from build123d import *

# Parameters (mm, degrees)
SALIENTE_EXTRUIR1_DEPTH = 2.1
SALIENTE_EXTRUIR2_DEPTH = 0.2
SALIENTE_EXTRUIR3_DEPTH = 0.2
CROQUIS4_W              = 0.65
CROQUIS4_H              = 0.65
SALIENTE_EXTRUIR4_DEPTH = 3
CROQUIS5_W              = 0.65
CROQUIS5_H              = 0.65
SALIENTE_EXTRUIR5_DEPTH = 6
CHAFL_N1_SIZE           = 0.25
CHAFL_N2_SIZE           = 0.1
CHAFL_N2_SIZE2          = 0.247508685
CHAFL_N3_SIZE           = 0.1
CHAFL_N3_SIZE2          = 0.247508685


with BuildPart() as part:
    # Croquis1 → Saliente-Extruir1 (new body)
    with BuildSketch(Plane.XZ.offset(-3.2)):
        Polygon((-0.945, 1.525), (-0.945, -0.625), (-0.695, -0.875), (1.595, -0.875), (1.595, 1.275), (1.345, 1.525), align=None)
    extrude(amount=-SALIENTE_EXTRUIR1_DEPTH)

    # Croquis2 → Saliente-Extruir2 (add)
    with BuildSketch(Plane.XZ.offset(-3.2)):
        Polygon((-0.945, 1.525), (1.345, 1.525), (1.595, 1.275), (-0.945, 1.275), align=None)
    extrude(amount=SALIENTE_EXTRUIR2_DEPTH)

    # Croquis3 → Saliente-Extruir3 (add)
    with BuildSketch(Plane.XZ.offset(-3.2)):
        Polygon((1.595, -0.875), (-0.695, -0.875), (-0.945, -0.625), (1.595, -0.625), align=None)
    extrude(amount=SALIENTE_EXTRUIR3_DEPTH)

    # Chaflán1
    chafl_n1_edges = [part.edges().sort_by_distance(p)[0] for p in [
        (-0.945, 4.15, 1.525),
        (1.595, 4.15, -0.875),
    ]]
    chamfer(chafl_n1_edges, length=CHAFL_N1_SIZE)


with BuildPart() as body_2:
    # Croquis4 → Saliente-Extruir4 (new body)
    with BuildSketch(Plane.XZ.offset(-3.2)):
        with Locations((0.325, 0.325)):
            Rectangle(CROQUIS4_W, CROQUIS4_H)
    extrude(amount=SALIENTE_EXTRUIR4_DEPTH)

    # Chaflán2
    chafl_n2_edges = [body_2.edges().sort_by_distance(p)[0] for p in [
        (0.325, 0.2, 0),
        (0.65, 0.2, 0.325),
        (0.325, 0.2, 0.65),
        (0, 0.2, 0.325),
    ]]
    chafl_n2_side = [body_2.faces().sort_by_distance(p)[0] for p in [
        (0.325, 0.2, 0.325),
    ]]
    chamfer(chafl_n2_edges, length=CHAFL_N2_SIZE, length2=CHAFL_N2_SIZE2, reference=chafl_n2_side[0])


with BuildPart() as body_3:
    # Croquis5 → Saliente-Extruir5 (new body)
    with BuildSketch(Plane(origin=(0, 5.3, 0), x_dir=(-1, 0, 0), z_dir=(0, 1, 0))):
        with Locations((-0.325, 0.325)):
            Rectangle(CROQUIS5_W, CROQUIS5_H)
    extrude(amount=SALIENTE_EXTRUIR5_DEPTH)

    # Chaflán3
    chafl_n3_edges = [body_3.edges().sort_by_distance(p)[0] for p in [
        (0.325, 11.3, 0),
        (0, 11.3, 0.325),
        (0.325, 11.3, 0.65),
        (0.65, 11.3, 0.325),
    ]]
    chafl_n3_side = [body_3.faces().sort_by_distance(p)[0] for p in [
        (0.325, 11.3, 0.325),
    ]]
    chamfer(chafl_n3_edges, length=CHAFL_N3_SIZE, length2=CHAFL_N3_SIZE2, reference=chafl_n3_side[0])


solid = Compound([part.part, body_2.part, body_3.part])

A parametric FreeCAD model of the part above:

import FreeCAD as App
import Part
import Sketcher

V = App.Vector
Q = App.Units.Quantity


def edges_at(feature, points):
    """Names of the edges that pass closest to the given points."""
    edges = feature.Shape.Edges
    near = lambda p: min(range(len(edges)), key=lambda i: edges[i].distToShape(Part.Vertex(*p))[0])
    return sorted({f"Edge{near(p) + 1}" for p in points})


def add_polygon(sketch, points):
    """Adds a closed chain of lines whose ends are joined by coincident constraints."""
    first, n = sketch.GeometryCount, len(points)
    for a, b in zip(points, points[1:] + points[:1]):
        sketch.addGeometry(Part.LineSegment(App.Vector(*a, 0), App.Vector(*b, 0)), False)
    for i in range(n):
        sketch.addConstraint(Sketcher.Constraint("Coincident", first + i, 2, first + (i + 1) % n, 1))

doc = App.newDocument("Part")
body = doc.addObject("PartDesign::Body", "Body")

# Sketch on XZ plane
sketch1 = body.newObject("Sketcher::SketchObject", "Sketch")
sketch1.AttachmentSupport = (doc.getObject("XZ_Plane"), [""])
sketch1.MapMode = "FlatFace"
sketch1.AttachmentOffset = App.Placement(V(0, 0, -3.2), App.Rotation())
add_polygon(sketch1, [(-0.94, 1.52), (-0.94, -0.62), (-0.69, -0.88), (1.59, -0.88), (1.59, 1.27), (1.34, 1.52)])  # lines 0-5
sketch1.addConstraint([
    Sketcher.Constraint("Vertical", 0),
    Sketcher.Constraint("Horizontal", 2),
    Sketcher.Constraint("Vertical", 3),
    Sketcher.Constraint("Horizontal", 5),
    Sketcher.Constraint("Parallel", 1, 4),
    Sketcher.Constraint("Equal", 2, 5),
    Sketcher.Constraint("Angle", 1, Q("-45 deg")),
    Sketcher.Constraint("DistanceX", 2, 1, 2, 2, Q("2.29 mm")),
    Sketcher.Constraint("DistanceY", 0, 2, 0, 1, Q("2.15 mm")),
    Sketcher.Constraint("DistanceY", 0, 2, 3, 2, Q("1.9 mm")),
    Sketcher.Constraint("DistanceX", 0, 2, -1, 1, Q("0.945 mm")),
    Sketcher.Constraint("DistanceY", 0, 2, -1, 1, Q("0.625 mm")),
])
pad1 = body.newObject("PartDesign::Pad", "Pad")
pad1.Profile = sketch1
pad1.Length = 2.1
pad1.Reversed = True

# Sketch on XZ plane
sketch2 = body.newObject("Sketcher::SketchObject", "Sketch001")
sketch2.AttachmentSupport = (doc.getObject("XZ_Plane"), [""])
sketch2.MapMode = "FlatFace"
sketch2.AttachmentOffset = App.Placement(V(0, 0, -3.2), App.Rotation())
add_polygon(sketch2, [(1.34, 1.52), (-0.94, 1.52), (-0.94, 1.27), (1.59, 1.27)])  # lines 0-3
sketch2.addConstraint([
    Sketcher.Constraint("Horizontal", 0),
    Sketcher.Constraint("Vertical", 1),
    Sketcher.Constraint("Horizontal", 2),
    Sketcher.Constraint("Angle", 3, Q("135 deg")),
    Sketcher.Constraint("DistanceX", 0, 2, 0, 1, Q("2.29 mm")),
    Sketcher.Constraint("DistanceX", 2, 1, 2, 2, Q("2.54 mm")),
    Sketcher.Constraint("DistanceX", 0, 2, -1, 1, Q("0.945 mm")),
    Sketcher.Constraint("DistanceY", -1, 1, 0, 2, Q("1.525 mm")),
])
pad2 = body.newObject("PartDesign::Pad", "Pad001")
pad2.Profile = sketch2
pad2.Length = 0.2

# Sketch on XZ plane
sketch3 = body.newObject("Sketcher::SketchObject", "Sketch002")
sketch3.AttachmentSupport = (doc.getObject("XZ_Plane"), [""])
sketch3.MapMode = "FlatFace"
sketch3.AttachmentOffset = App.Placement(V(0, 0, -3.2), App.Rotation())
add_polygon(sketch3, [(-0.69, -0.88), (1.59, -0.88), (1.59, -0.62), (-0.94, -0.62)])  # lines 0-3
sketch3.addConstraint([
    Sketcher.Constraint("Horizontal", 0),
    Sketcher.Constraint("Vertical", 1),
    Sketcher.Constraint("Horizontal", 2),
    Sketcher.Constraint("Angle", 3, Q("-45 deg")),
    Sketcher.Constraint("DistanceX", 0, 1, 0, 2, Q("2.29 mm")),
    Sketcher.Constraint("DistanceX", 2, 2, 2, 1, Q("2.54 mm")),
    Sketcher.Constraint("DistanceX", -1, 1, 0, 2, Q("1.595 mm")),
    Sketcher.Constraint("DistanceY", 0, 2, -1, 1, Q("0.875 mm")),
])
pad3 = body.newObject("PartDesign::Pad", "Pad002")
pad3.Profile = sketch3
pad3.Length = 0.2
doc.recompute()

chamfer = body.newObject("PartDesign::Chamfer", "Chamfer")
chamfer.Base = (pad3, edges_at(pad3, [(-0.945, 4.15, 1.525), (1.595, 4.15, -0.875)]))
chamfer.Size = 0.25
body2 = doc.addObject("PartDesign::Body", "Body001")

# Sketch on XZ plane
sketch4 = body2.newObject("Sketcher::SketchObject", "Sketch003")
sketch4.AttachmentSupport = (doc.getObject("XZ_Plane001"), [""])
sketch4.MapMode = "FlatFace"
sketch4.AttachmentOffset = App.Placement(V(0, 0, -3.2), App.Rotation())
add_polygon(sketch4, [(0, 0.7), (0, 0), (0.7, 0), (0.7, 0.7)])  # lines 0-3
sketch4.addConstraint([
    Sketcher.Constraint("Vertical", 0),
    Sketcher.Constraint("Horizontal", 1),
    Sketcher.Constraint("Vertical", 2),
    Sketcher.Constraint("Horizontal", 3),
    Sketcher.Constraint("Coincident", 0, 2, -1, 1),
    Sketcher.Constraint("Equal", 3, 0),
    Sketcher.Constraint("DistanceX", 1, 1, 1, 2, Q("0.65 mm")),
])
pad4 = body2.newObject("PartDesign::Pad", "Pad003")
pad4.Profile = sketch4
pad4.Length = 3
doc.recompute()

chamfer2 = body2.newObject("PartDesign::Chamfer", "Chamfer001")
chamfer2.Base = (pad4, edges_at(pad4, [
    (0.325, 0.2, 0),
    (0.65, 0.2, 0.325),
    (0.325, 0.2, 0.65),
    (0, 0.2, 0.325),
]))
chamfer2.ChamferType = "Two distances"
chamfer2.Size = 0.1
chamfer2.Size2 = 0.247509
chamfer2.FlipDirection = True
body3 = doc.addObject("PartDesign::Body", "Body002")

# Sketch on XZ plane
sketch5 = body3.newObject("Sketcher::SketchObject", "Sketch004")
sketch5.AttachmentSupport = (doc.getObject("XZ_Plane002"), [""])
sketch5.MapMode = "FlatFace"
sketch5.AttachmentOffset = App.Placement(V(0, 0, -5.3), App.Rotation())
add_polygon(sketch5, [(0.7, 0.7), (0.7, 0), (0, 0), (0, 0.7)])  # lines 0-3
sketch5.addConstraint([
    Sketcher.Constraint("Vertical", 0),
    Sketcher.Constraint("Horizontal", 1),
    Sketcher.Constraint("Vertical", 2),
    Sketcher.Constraint("Horizontal", 3),
    Sketcher.Constraint("Coincident", 1, 2, -1, 1),
    Sketcher.Constraint("Equal", 3, 0),
    Sketcher.Constraint("DistanceX", 1, 2, 1, 1, Q("0.65 mm")),
])
pad5 = body3.newObject("PartDesign::Pad", "Pad004")
pad5.Profile = sketch5
pad5.Length = 6
pad5.Reversed = True
doc.recompute()

chamfer3 = body3.newObject("PartDesign::Chamfer", "Chamfer002")
chamfer3.Base = (pad5, edges_at(pad5, [
    (0.325, 11.3, 0),
    (0, 11.3, 0.325),
    (0.325, 11.3, 0.65),
    (0.65, 11.3, 0.325),
]))
chamfer3.ChamferType = "Two distances"
chamfer3.Size = 0.1
chamfer3.Size2 = 0.247509
chamfer3.FlipDirection = True

doc.recompute()
